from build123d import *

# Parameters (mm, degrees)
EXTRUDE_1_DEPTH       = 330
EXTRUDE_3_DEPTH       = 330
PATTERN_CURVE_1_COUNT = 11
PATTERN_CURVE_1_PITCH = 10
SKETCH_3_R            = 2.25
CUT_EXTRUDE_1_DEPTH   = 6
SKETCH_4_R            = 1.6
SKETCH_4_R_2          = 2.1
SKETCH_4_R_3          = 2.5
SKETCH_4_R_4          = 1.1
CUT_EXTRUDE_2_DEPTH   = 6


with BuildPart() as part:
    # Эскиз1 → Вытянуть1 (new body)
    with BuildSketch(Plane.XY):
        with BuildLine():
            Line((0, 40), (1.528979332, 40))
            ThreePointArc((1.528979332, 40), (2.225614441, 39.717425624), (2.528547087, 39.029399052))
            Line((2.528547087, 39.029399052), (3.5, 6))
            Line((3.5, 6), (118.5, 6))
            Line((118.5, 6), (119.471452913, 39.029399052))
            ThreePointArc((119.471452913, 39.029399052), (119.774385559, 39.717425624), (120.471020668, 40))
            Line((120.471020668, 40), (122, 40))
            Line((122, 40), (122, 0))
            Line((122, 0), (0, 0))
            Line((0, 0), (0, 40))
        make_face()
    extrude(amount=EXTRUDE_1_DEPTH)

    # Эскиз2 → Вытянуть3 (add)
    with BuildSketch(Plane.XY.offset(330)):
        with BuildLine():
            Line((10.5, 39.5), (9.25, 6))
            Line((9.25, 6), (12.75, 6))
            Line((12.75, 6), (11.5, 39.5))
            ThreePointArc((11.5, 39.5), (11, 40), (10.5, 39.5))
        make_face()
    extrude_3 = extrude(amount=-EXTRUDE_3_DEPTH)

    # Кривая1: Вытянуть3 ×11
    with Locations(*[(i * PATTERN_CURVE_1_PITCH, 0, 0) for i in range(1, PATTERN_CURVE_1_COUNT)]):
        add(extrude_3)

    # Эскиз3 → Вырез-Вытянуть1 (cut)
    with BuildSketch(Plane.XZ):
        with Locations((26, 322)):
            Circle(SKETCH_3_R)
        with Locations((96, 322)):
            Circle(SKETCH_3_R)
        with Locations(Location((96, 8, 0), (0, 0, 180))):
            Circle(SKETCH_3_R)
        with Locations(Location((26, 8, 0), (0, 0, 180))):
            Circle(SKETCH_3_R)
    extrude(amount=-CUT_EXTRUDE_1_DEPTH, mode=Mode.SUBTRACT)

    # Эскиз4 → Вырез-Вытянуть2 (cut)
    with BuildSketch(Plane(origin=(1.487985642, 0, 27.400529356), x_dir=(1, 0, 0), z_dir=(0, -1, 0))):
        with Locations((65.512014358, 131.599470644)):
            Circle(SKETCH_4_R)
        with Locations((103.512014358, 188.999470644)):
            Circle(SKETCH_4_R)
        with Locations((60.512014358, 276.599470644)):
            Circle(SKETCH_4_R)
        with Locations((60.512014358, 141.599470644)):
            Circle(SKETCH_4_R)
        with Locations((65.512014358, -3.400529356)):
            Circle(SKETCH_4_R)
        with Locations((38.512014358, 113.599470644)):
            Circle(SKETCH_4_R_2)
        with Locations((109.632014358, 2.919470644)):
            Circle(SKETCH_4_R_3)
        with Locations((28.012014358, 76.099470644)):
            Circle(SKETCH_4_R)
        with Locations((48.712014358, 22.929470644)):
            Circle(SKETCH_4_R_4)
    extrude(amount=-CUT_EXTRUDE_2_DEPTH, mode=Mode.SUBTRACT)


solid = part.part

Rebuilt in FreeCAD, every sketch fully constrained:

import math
import FreeCAD as App
import Part
import Sketcher

V = App.Vector

doc = App.newDocument("Part")
body = doc.addObject("PartDesign::Body", "Body")

# Sketch on XY plane
sketch1 = body.newObject("Sketcher::SketchObject", "Sketch")
sketch1.AttachmentSupport = (doc.getObject("XY_Plane"), [""])
sketch1.MapMode = "FlatFace"
sketch1.addGeometry(Part.LineSegment(V(1.5, 40, 0), V(0, 40, 0)), False)
sketch1.addGeometry(Part.LineSegment(V(0, 40, 0), V(0, 0, 0)), False)
sketch1.addGeometry(Part.LineSegment(V(0, 0, 0), V(122, 0, 0)), False)
sketch1.addGeometry(Part.LineSegment(V(122, 0, 0), V(122, 40, 0)), False)
sketch1.addGeometry(Part.LineSegment(V(122, 40, 0), V(120.5, 40, 0)), False)
sketch1.addGeometry(Part.ArcOfCircle(Part.Circle(V(120.5, 39, 0), V(0, 0, 1), 1), math.radians(90), math.radians(178)), False)
sketch1.addGeometry(Part.LineSegment(V(119.5, 39, 0), V(118.5, 6, 0)), False)
sketch1.addGeometry(Part.LineSegment(V(118.5, 6, 0), V(3.5, 6, 0)), False)
sketch1.addGeometry(Part.LineSegment(V(3.5, 6, 0), V(2.5, 39, 0)), False)
sketch1.addGeometry(Part.ArcOfCircle(Part.Circle(V(1.5, 39, 0), V(0, 0, 1), 1), math.radians(2), math.radians(90)), False)
sketch1.addConstraint(Sketcher.Constraint("Coincident", 0, 2, 1, 1))
sketch1.addConstraint(Sketcher.Constraint("Coincident", 1, 2, 2, 1))
sketch1.addConstraint(Sketcher.Constraint("Coincident", 2, 2, 3, 1))
sketch1.addConstraint(Sketcher.Constraint("Coincident", 3, 2, 4, 1))
sketch1.addConstraint(Sketcher.Constraint("Tangent", 4, 2, 5, 1))
sketch1.addConstraint(Sketcher.Constraint("Tangent", 5, 2, 6, 1))
sketch1.addConstraint(Sketcher.Constraint("Coincident", 6, 2, 7, 1))
sketch1.addConstraint(Sketcher.Constraint("Coincident", 7, 2, 8, 1))
sketch1.addConstraint(Sketcher.Constraint("Tangent", 8, 2, 9, 1))
sketch1.addConstraint(Sketcher.Constraint("Tangent", 9, 2, 0, 1))
sketch1.addConstraint(Sketcher.Constraint("Horizontal", 0))
sketch1.addConstraint(Sketcher.Constraint("Vertical", 1))
sketch1.addConstraint(Sketcher.Constraint("Horizontal", 2))
sketch1.addConstraint(Sketcher.Constraint("Vertical", 3))
sketch1.addConstraint(Sketcher.Constraint("Horizontal", 4))
sketch1.addConstraint(Sketcher.Constraint("Horizontal", 7))
sketch1.addConstraint(Sketcher.Constraint("Coincident", 1, 2, -1, 1))
sketch1.addConstraint(Sketcher.Constraint("Equal", 5, 9))
sketch1.addConstraint(Sketcher.Constraint("Horizontal", 5, 3, 9, 3))
sketch1.addConstraint(Sketcher.Constraint("Horizontal", 5, 2, 8, 2))
sketch1.addConstraint(Sketcher.Constraint("Equal", 0, 4))
sketch1.addConstraint(Sketcher.Constraint("Radius", 5, 1.0))
sketch1.addConstraint(Sketcher.Constraint("DistanceX", 2, 1, 2, 2, 122.0))
sketch1.addConstraint(Sketcher.Constraint("DistanceX", 7, 2, 7, 1, 115.0))
sketch1.addConstraint(Sketcher.Constraint("DistanceY", 1, 2, 1, 1, 40.0))
sketch1.addConstraint(Sketcher.Constraint("DistanceY", -1, 1, 6, 2, 6.0))
sketch1.addConstraint(Sketcher.Constraint("DistanceX", 0, 2, 0, 1, 1.528979))
pad1 = body.newObject("PartDesign::Pad", "Pad")
pad1.Profile = sketch1
pad1.Length = 330

# Sketch on XY plane
sketch2 = body.newObject("Sketcher::SketchObject", "Sketch001")
sketch2.AttachmentSupport = (doc.getObject("XY_Plane"), [""])
sketch2.MapMode = "FlatFace"
sketch2.AttachmentOffset = App.Placement(V(0, 0, 330), App.Rotation())
sketch2.addGeometry(Part.LineSegment(V(10.5, 39.5, 0), V(9.2, 6, 0)), False)
sketch2.addGeometry(Part.LineSegment(V(9.2, 6, 0), V(12.8, 6, 0)), False)
sketch2.addGeometry(Part.LineSegment(V(12.8, 6, 0), V(11.5, 39.5, 0)), False)
sketch2.addGeometry(Part.ArcOfCircle(Part.Circle(V(11, 39.5, 0), V(0, 0, 1), 0.5), math.radians(0), math.radians(180)), False)
sketch2.addConstraint(Sketcher.Constraint("Coincident", 0, 2, 1, 1))
sketch2.addConstraint(Sketcher.Constraint("Coincident", 1, 2, 2, 1))
sketch2.addConstraint(Sketcher.Constraint("Coincident", 2, 2, 3, 1))
sketch2.addConstraint(Sketcher.Constraint("Coincident", 3, 2, 0, 1))
sketch2.addConstraint(Sketcher.Constraint("Horizontal", 1))
sketch2.addConstraint(Sketcher.Constraint("Horizontal", 3, 3, 2, 2))
sketch2.addConstraint(Sketcher.Constraint("Horizontal", 2, 2, 3, 2))
sketch2.addConstraint(Sketcher.Constraint("Equal", 0, 2))
sketch2.addConstraint(Sketcher.Constraint("Radius", 3, 0.5))
sketch2.addConstraint(Sketcher.Constraint("DistanceX", 1, 1, 1, 2, 3.5))
sketch2.addConstraint(Sketcher.Constraint("DistanceX", -1, 1, 3, 3, 11.0))
sketch2.addConstraint(Sketcher.Constraint("DistanceY", -1, 1, 0, 2, 6.0))
sketch2.addConstraint(Sketcher.Constraint("DistanceY", -1, 1, 3, 3, 39.5))
pad2 = body.newObject("PartDesign::Pad", "Pad001")
pad2.Profile = sketch2
pad2.Length = 330
pad2.Reversed = True
doc.recompute()

linearpattern = body.newObject("PartDesign::LinearPattern", "LinearPattern")
linearpattern.Originals = [pad2]
linearpattern.Direction = (doc.getObject("X_Axis"), [""])
linearpattern.Mode = "offset"
linearpattern.Offset = 10
linearpattern.Occurrences = 11
body.Tip = linearpattern

# Sketch on XZ plane
sketch3 = body.newObject("Sketcher::SketchObject", "Sketch002")
sketch3.AttachmentSupport = (doc.getObject("XZ_Plane"), [""])
sketch3.MapMode = "FlatFace"
sketch3.addGeometry(Part.Circle(V(26, 322, 0), V(0, 0, 1), 2.2), False)
sketch3.addGeometry(Part.Circle(V(96, 322, 0), V(0, 0, 1), 2.2), False)
sketch3.addGeometry(Part.Circle(V(96, 8, 0), V(0, 0, 1), 2.2), False)
sketch3.addGeometry(Part.Circle(V(26, 8, 0), V(0, 0, 1), 2.2), False)
sketch3.addConstraint(Sketcher.Constraint("Equal", 0, 1))
sketch3.addConstraint(Sketcher.Constraint("Equal", 1, 2))
sketch3.addConstraint(Sketcher.Constraint("Equal", 2, 3))
sketch3.addConstraint(Sketcher.Constraint("Horizontal", 0, 3, 1, 3))
sketch3.addConstraint(Sketcher.Constraint("Horizontal", 2, 3, 3, 3))
sketch3.addConstraint(Sketcher.Constraint("Vertical", 1, 3, 2, 3))
sketch3.addConstraint(Sketcher.Constraint("Vertical", 0, 3, 3, 3))
sketch3.addConstraint(Sketcher.Constraint("Diameter", 0, 4.5))
sketch3.addConstraint(Sketcher.Constraint("DistanceX", -1, 1, 0, 3, 26.0))
sketch3.addConstraint(Sketcher.Constraint("DistanceY", -1, 1, 0, 3, 322.0))
sketch3.addConstraint(Sketcher.Constraint("DistanceX", -1, 1, 1, 3, 96.0))
sketch3.addConstraint(Sketcher.Constraint("DistanceY", -1, 1, 2, 3, 8.0))
pocket1 = body.newObject("PartDesign::Pocket", "Pocket")
pocket1.Profile = sketch3
pocket1.Length = 6

# Sketch on XZ plane
sketch4 = body.newObject("Sketcher::SketchObject", "Sketch003")
sketch4.AttachmentSupport = (doc.getObject("XZ_Plane"), [""])
sketch4.MapMode = "FlatFace"
sketch4.addGeometry(Part.Circle(V(67, 159, 0), V(0, 0, 1), 1.6), False)
sketch4.addGeometry(Part.Circle(V(105, 216.4, 0), V(0, 0, 1), 1.6), False)
sketch4.addGeometry(Part.Circle(V(62, 304, 0), V(0, 0, 1), 1.6), False)
sketch4.addGeometry(Part.Circle(V(62, 169, 0), V(0, 0, 1), 1.6), False)
sketch4.addGeometry(Part.Circle(V(67, 24, 0), V(0, 0, 1), 1.6), False)
sketch4.addGeometry(Part.Circle(V(40, 141, 0), V(0, 0, 1), 2.1), False)
sketch4.addGeometry(Part.Circle(V(111.1, 30.3, 0), V(0, 0, 1), 2.5), False)
sketch4.addGeometry(Part.Circle(V(29.5, 103.5, 0), V(0, 0, 1), 1.6), False)
sketch4.addGeometry(Part.Circle(V(50.2, 50.3, 0), V(0, 0, 1), 1.1), False)
sketch4.addConstraint(Sketcher.Constraint("Equal", 0, 1))
sketch4.addConstraint(Sketcher.Constraint("Equal", 1, 2))
sketch4.addConstraint(Sketcher.Constraint("Equal", 2, 3))
sketch4.addConstraint(Sketcher.Constraint("Equal", 3, 4))
sketch4.addConstraint(Sketcher.Constraint("Equal", 4, 7))
sketch4.addConstraint(Sketcher.Constraint("Vertical", 2, 3, 3, 3))
sketch4.addConstraint(Sketcher.Constraint("Vertical", 0, 3, 4, 3))
sketch4.addConstraint(Sketcher.Constraint("Diameter", 6, 5.0))
sketch4.addConstraint(Sketcher.Constraint("Diameter", 0, 3.2))
sketch4.addConstraint(Sketcher.Constraint("Diameter", 5, 4.2))
sketch4.addConstraint(Sketcher.Constraint("Diameter", 8, 2.2))
sketch4.addConstraint(Sketcher.Constraint("DistanceX", -1, 1, 0, 3, 67.0))
sketch4.addConstraint(Sketcher.Constraint("DistanceY", -1, 1, 0, 3, 159.0))
sketch4.addConstraint(Sketcher.Constraint("DistanceX", -1, 1, 1, 3, 105.0))
sketch4.addConstraint(Sketcher.Constraint("DistanceX", -1, 1, 2, 3, 62.0))
sketch4.addConstraint(Sketcher.Constraint("DistanceY", -1, 1, 2, 3, 304.0))
sketch4.addConstraint(Sketcher.Constraint("DistanceY", -1, 1, 3, 3, 169.0))
sketch4.addConstraint(Sketcher.Constraint("DistanceY", -1, 1, 4, 3, 24.0))
sketch4.addConstraint(Sketcher.Constraint("DistanceX", -1, 1, 5, 3, 40.0))
sketch4.addConstraint(Sketcher.Constraint("DistanceY", -1, 1, 5, 3, 141.0))
sketch4.addConstraint(Sketcher.Constraint("DistanceY", -1, 1, 1, 3, 216.4))
sketch4.addConstraint(Sketcher.Constraint("DistanceX", -1, 1, 7, 3, 29.5))
sketch4.addConstraint(Sketcher.Constraint("DistanceY", -1, 1, 7, 3, 103.5))
sketch4.addConstraint(Sketcher.Constraint("DistanceX", -1, 1, 8, 3, 50.2))
sketch4.addConstraint(Sketcher.Constraint("DistanceX", -1, 1, 6, 3, 111.12))
sketch4.addConstraint(Sketcher.Constraint("DistanceY", -1, 1, 6, 3, 30.32))
sketch4.addConstraint(Sketcher.Constraint("DistanceY", -1, 1, 8, 3, 50.33))
pocket2 = body.newObject("PartDesign::Pocket", "Pocket001")
pocket2.Profile = sketch4
pocket2.Length = 6

doc.recompute()
